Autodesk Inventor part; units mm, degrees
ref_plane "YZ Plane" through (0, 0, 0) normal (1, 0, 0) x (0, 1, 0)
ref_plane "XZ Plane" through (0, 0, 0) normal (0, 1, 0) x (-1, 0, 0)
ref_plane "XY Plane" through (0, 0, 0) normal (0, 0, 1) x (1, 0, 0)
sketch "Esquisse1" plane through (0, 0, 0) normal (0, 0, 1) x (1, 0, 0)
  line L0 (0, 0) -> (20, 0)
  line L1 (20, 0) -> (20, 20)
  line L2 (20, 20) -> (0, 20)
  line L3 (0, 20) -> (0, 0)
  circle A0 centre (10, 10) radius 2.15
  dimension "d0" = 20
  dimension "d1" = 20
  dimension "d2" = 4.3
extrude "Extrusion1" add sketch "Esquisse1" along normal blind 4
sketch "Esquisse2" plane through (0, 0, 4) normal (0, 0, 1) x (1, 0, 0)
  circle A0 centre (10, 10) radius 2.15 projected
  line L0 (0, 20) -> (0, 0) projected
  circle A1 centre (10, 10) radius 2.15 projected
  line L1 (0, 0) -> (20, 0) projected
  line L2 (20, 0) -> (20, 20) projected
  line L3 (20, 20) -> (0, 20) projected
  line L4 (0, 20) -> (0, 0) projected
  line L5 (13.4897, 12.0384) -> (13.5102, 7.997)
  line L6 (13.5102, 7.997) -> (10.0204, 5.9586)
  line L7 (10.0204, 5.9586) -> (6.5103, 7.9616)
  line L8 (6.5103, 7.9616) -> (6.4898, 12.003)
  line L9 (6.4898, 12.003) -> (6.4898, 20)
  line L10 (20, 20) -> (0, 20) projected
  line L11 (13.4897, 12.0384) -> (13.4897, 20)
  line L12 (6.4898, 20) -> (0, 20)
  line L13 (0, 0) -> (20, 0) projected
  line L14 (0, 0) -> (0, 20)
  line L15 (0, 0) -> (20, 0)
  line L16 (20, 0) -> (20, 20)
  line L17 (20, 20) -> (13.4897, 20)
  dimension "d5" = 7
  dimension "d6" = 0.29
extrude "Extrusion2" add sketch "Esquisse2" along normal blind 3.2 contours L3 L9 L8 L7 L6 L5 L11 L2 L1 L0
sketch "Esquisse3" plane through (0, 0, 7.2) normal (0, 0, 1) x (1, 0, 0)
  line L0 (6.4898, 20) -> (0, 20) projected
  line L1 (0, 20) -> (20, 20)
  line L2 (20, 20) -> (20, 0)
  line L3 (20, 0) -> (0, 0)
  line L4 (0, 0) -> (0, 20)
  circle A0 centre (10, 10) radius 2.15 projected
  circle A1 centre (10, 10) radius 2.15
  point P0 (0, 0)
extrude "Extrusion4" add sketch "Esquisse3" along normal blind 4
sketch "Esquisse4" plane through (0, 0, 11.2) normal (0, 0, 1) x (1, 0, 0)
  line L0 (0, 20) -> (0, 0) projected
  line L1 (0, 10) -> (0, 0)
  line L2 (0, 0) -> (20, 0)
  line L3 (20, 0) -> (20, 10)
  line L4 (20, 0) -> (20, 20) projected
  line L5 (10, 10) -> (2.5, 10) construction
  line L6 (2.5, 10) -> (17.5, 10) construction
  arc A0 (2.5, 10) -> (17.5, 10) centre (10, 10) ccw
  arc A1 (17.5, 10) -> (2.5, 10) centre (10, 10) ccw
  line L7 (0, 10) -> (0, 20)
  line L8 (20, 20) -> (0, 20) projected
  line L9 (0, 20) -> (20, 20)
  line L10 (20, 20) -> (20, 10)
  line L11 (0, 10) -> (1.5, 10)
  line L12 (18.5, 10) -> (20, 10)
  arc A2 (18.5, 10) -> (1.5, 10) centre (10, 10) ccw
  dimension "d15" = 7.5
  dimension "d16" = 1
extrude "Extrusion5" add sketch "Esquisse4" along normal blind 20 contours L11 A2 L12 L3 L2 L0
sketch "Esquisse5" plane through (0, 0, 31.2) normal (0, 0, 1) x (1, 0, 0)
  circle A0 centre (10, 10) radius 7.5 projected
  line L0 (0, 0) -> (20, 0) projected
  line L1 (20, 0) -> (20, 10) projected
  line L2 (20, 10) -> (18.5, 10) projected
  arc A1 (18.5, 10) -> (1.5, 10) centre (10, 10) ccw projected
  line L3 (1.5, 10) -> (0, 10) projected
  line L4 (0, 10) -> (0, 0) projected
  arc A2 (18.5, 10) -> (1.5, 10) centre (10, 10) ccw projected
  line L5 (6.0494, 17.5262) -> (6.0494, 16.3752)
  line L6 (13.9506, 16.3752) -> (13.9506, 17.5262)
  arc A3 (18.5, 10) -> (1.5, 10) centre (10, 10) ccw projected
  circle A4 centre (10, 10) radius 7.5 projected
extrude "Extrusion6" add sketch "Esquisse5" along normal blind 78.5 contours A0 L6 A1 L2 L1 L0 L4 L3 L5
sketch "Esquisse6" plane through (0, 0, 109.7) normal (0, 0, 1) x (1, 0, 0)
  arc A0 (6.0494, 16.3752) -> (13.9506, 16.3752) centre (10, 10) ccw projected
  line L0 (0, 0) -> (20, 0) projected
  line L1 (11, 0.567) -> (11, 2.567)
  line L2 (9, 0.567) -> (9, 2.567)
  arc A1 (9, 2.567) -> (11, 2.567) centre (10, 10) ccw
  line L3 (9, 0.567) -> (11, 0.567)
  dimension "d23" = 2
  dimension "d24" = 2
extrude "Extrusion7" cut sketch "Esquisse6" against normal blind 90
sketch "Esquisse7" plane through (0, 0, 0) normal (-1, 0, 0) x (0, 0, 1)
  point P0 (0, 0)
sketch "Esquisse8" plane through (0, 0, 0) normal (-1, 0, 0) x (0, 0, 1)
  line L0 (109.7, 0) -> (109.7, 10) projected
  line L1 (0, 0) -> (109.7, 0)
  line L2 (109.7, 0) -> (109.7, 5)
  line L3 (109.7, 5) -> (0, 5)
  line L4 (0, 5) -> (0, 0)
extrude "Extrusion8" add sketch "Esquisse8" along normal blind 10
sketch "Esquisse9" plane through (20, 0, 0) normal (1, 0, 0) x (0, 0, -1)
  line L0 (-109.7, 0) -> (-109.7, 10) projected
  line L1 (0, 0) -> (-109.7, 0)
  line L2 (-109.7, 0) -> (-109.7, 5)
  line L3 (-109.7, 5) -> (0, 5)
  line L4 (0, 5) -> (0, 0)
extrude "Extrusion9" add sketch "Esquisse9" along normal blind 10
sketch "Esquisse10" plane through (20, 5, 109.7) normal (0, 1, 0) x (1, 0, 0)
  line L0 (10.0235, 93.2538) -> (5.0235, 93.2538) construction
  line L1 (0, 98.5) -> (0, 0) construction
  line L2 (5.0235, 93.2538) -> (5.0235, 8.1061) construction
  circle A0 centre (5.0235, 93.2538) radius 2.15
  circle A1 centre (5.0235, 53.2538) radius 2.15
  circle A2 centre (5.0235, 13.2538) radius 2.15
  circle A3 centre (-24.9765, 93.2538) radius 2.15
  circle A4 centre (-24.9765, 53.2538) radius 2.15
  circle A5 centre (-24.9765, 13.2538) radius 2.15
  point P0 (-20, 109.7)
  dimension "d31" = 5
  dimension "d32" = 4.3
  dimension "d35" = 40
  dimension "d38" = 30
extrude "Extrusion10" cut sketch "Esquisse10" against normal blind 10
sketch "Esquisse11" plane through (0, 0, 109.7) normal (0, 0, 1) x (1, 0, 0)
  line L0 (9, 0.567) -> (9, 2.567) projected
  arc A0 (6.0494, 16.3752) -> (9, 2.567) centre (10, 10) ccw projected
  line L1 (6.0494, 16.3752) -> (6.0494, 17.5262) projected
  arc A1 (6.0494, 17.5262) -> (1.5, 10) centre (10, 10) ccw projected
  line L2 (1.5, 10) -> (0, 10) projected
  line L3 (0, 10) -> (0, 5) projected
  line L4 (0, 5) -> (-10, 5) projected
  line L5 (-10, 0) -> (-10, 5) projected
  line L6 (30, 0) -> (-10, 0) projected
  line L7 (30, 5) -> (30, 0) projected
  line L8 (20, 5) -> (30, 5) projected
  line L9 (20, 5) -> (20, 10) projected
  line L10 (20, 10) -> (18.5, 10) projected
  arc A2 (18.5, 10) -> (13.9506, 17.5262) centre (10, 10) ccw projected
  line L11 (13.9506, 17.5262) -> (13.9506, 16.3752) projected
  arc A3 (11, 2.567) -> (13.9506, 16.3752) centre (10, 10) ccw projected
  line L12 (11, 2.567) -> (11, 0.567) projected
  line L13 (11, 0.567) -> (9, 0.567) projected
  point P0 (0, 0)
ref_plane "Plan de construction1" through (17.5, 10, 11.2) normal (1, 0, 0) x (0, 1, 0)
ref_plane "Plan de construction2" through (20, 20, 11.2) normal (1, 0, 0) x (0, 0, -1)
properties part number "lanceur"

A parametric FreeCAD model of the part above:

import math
import FreeCAD as App
import Part
import Sketcher
Q = App.Units.Quantity

doc = App.newDocument("Part")
params = doc.addObject("Spreadsheet::Sheet", "Params")
for row, (alias, value) in enumerate([
    ("sketch1_diameter", "4.3 mm"),
    ("sketch1_width", "20 mm"),
    ("pad1_length", "4 mm"),
    ("sketch2_width", "20 mm"),
    ("pad2_length", "3.2 mm"),
    ("sketch3_diameter", "4.3 mm"),
    ("sketch3_width", "20 mm"),
    ("pad3_length", "4 mm"),
    ("sketch4_diameter", "15 mm"),
    ("sketch4_radius", "8.5 mm"),
    ("sketch4_width", "20 mm"),
    ("sketch4_height", "10 mm"),
    ("pad4_length", "20 mm"),
    ("sketch5_radius", "7.5 mm"),
    ("sketch5_radius2", "8.5 mm"),
    ("sketch5_width", "20 mm"),
    ("sketch5_height", "10 mm"),
    ("pad5_length", "78.5 mm"),
    ("sketch6_width", "2 mm"),
    ("sketch6_radius", "7.5 mm"),
    ("pocket1_length", "90 mm"),
    ("sketch7_width", "5 mm"),
    ("sketch7_height", "109.7 mm"),
    ("pad6_length", "10 mm"),
    ("sketch8_width", "5 mm"),
    ("sketch8_height", "109.7 mm"),
    ("pad7_length", "10 mm"),
    ("sketch9_diameter", "4.3 mm"),
    ("pocket2_length", "10 mm"),
], start=1):
    params.set(f"A{row}", alias)
    params.set(f"B{row}", "=" + value)
    params.setAlias(f"B{row}", alias)

body = doc.addObject("PartDesign::Body", "Body")

sketch1 = doc.addObject("Sketcher::SketchObject", "Sketch")
body.addObject(sketch1)
sketch1.AttachmentSupport = (doc.XY_Plane, [""])
sketch1.MapMode = "FlatFace"
sketch1.addGeometry(Part.LineSegment(App.Vector(0, 20, 0), App.Vector(0, 0, 0)), False)
sketch1.addGeometry(Part.LineSegment(App.Vector(0, 0, 0), App.Vector(20, 0, 0)), False)
sketch1.addGeometry(Part.LineSegment(App.Vector(20, 0, 0), App.Vector(20, 20, 0)), False)
sketch1.addGeometry(Part.LineSegment(App.Vector(20, 20, 0), App.Vector(0, 20, 0)), False)
sketch1.addGeometry(Part.Circle(App.Vector(10, 10, 0), App.Vector(0, 0, 1), 2.1), False)
sketch1.addConstraint(Sketcher.Constraint("Coincident", 0, 2, 1, 1))
sketch1.addConstraint(Sketcher.Constraint("Coincident", 1, 2, 2, 1))
sketch1.addConstraint(Sketcher.Constraint("Coincident", 2, 2, 3, 1))
sketch1.addConstraint(Sketcher.Constraint("Coincident", 3, 2, 0, 1))
sketch1.addConstraint(Sketcher.Constraint("Vertical", 0))
sketch1.addConstraint(Sketcher.Constraint("Horizontal", 1))
sketch1.addConstraint(Sketcher.Constraint("Vertical", 2))
sketch1.addConstraint(Sketcher.Constraint("Horizontal", 3))
sketch1.addConstraint(Sketcher.Constraint("Coincident", 0, 2, -1, 1))
sketch1.addConstraint(Sketcher.Constraint("Equal", 3, 0))
sketch1.addConstraint(Sketcher.Constraint("Diameter", 4, 4.3))
sketch1.addConstraint(Sketcher.Constraint("DistanceX", 1, 1, 1, 2, 20.0))
sketch1.addConstraint(Sketcher.Constraint("DistanceX", -1, 1, 4, 3, 10.0))
sketch1.addConstraint(Sketcher.Constraint("DistanceY", -1, 1, 4, 3, 10.0))
sketch1.setExpression("Constraints[10]", "Params.sketch1_diameter")
sketch1.setExpression("Constraints[11]", "Params.sketch1_width")
pad1 = doc.addObject("PartDesign::Pad", "Pad")
body.addObject(pad1)
pad1.Profile = sketch1
pad1.setExpression("Length", "Params.pad1_length")

sketch2 = doc.addObject("Sketcher::SketchObject", "Sketch001")
body.addObject(sketch2)
sketch2.AttachmentSupport = (doc.XY_Plane, [""])
sketch2.MapMode = "FlatFace"
sketch2.AttachmentOffset = App.Placement(App.Vector(0, 0, 4), App.Rotation())
sketch2.addGeometry(Part.LineSegment(App.Vector(6.5, 20, 0), App.Vector(0, 20, 0)), False)
sketch2.addGeometry(Part.LineSegment(App.Vector(0, 20, 0), App.Vector(0, 0, 0)), False)
sketch2.addGeometry(Part.LineSegment(App.Vector(0, 0, 0), App.Vector(20, 0, 0)), False)
sketch2.addGeometry(Part.LineSegment(App.Vector(20, 0, 0), App.Vector(20, 20, 0)), False)
sketch2.addGeometry(Part.LineSegment(App.Vector(20, 20, 0), App.Vector(13.5, 20, 0)), False)
sketch2.addGeometry(Part.LineSegment(App.Vector(13.5, 20, 0), App.Vector(13.5, 12, 0)), False)
sketch2.addGeometry(Part.LineSegment(App.Vector(13.5, 12, 0), App.Vector(13.5, 8, 0)), False)
sketch2.addGeometry(Part.LineSegment(App.Vector(13.5, 8, 0), App.Vector(10, 6, 0)), False)
sketch2.addGeometry(Part.LineSegment(App.Vector(10, 6, 0), App.Vector(6.5, 8, 0)), False)
sketch2.addGeometry(Part.LineSegment(App.Vector(6.5, 8, 0), App.Vector(6.5, 12, 0)), False)
sketch2.addGeometry(Part.LineSegment(App.Vector(6.5, 12, 0), App.Vector(6.5, 20, 0)), False)
sketch2.addConstraint(Sketcher.Constraint("Coincident", 0, 2, 1, 1))
sketch2.addConstraint(Sketcher.Constraint("Coincident", 1, 2, 2, 1))
sketch2.addConstraint(Sketcher.Constraint("Coincident", 2, 2, 3, 1))
sketch2.addConstraint(Sketcher.Constraint("Coincident", 3, 2, 4, 1))
sketch2.addConstraint(Sketcher.Constraint("Coincident", 4, 2, 5, 1))
sketch2.addConstraint(Sketcher.Constraint("Coincident", 5, 2, 6, 1))
sketch2.addConstraint(Sketcher.Constraint("Coincident", 6, 2, 7, 1))
sketch2.addConstraint(Sketcher.Constraint("Coincident", 7, 2, 8, 1))
sketch2.addConstraint(Sketcher.Constraint("Coincident", 8, 2, 9, 1))
sketch2.addConstraint(Sketcher.Constraint("Coincident", 9, 2, 10, 1))
sketch2.addConstraint(Sketcher.Constraint("Coincident", 10, 2, 0, 1))
sketch2.addConstraint(Sketcher.Constraint("Horizontal", 0))
sketch2.addConstraint(Sketcher.Constraint("Vertical", 1))
sketch2.addConstraint(Sketcher.Constraint("Horizontal", 2))
sketch2.addConstraint(Sketcher.Constraint("Vertical", 3))
sketch2.addConstraint(Sketcher.Constraint("Horizontal", 4))
sketch2.addConstraint(Sketcher.Constraint("Vertical", 5))
sketch2.addConstraint(Sketcher.Constraint("Vertical", 10))
sketch2.addConstraint(Sketcher.Constraint("Coincident", 1, 2, -1, 1))
sketch2.addConstraint(Sketcher.Constraint("Parallel", 6, 9))
sketch2.addConstraint(Sketcher.Constraint("Horizontal", 0, 2, 3, 2))
sketch2.addConstraint(Sketcher.Constraint("Equal", 2, 1))
sketch2.addConstraint(Sketcher.Constraint("Equal", 6, 7))
sketch2.addConstraint(Sketcher.Constraint("Equal", 7, 8))
sketch2.addConstraint(Sketcher.Constraint("Equal", 8, 9))
sketch2.addConstraint(Sketcher.Constraint("DistanceX", 8, 2, 6, 2, 7.0))
sketch2.addConstraint(Sketcher.Constraint("DistanceX", 2, 1, 2, 2, 20.0))
sketch2.addConstraint(Sketcher.Constraint("Angle", 6, Q("-89.7094 deg")))
sketch2.addConstraint(Sketcher.Constraint("Angle", 7, Q("-149.7107 deg")))
sketch2.addConstraint(Sketcher.Constraint("Angle", 8, Q("150.2892 deg")))
sketch2.addConstraint(Sketcher.Constraint("DistanceY", 10, 1, 10, 2, 7.997))
sketch2.addConstraint(Sketcher.Constraint("DistanceX", 0, 2, 0, 1, 6.4898))
sketch2.setExpression("Constraints[26]", "Params.sketch2_width")
pad2 = doc.addObject("PartDesign::Pad", "Pad001")
body.addObject(pad2)
pad2.Profile = sketch2
pad2.setExpression("Length", "Params.pad2_length")

sketch3 = doc.addObject("Sketcher::SketchObject", "Sketch002")
body.addObject(sketch3)
sketch3.AttachmentSupport = (doc.XY_Plane, [""])
sketch3.MapMode = "FlatFace"
sketch3.AttachmentOffset = App.Placement(App.Vector(0, 0, 7.2), App.Rotation())
sketch3.addGeometry(Part.LineSegment(App.Vector(20, 20, 0), App.Vector(0, 20, 0)), False)
sketch3.addGeometry(Part.LineSegment(App.Vector(0, 20, 0), App.Vector(0, 0, 0)), False)
sketch3.addGeometry(Part.LineSegment(App.Vector(0, 0, 0), App.Vector(20, 0, 0)), False)
sketch3.addGeometry(Part.LineSegment(App.Vector(20, 0, 0), App.Vector(20, 20, 0)), False)
sketch3.addGeometry(Part.Circle(App.Vector(10, 10, 0), App.Vector(0, 0, 1), 2.1), False)
sketch3.addConstraint(Sketcher.Constraint("Coincident", 0, 2, 1, 1))
sketch3.addConstraint(Sketcher.Constraint("Coincident", 1, 2, 2, 1))
sketch3.addConstraint(Sketcher.Constraint("Coincident", 2, 2, 3, 1))
sketch3.addConstraint(Sketcher.Constraint("Coincident", 3, 2, 0, 1))
sketch3.addConstraint(Sketcher.Constraint("Horizontal", 0))
sketch3.addConstraint(Sketcher.Constraint("Vertical", 1))
sketch3.addConstraint(Sketcher.Constraint("Horizontal", 2))
sketch3.addConstraint(Sketcher.Constraint("Vertical", 3))
sketch3.addConstraint(Sketcher.Constraint("Coincident", 1, 2, -1, 1))
sketch3.addConstraint(Sketcher.Constraint("Equal", 2, 1))
sketch3.addConstraint(Sketcher.Constraint("Diameter", 4, 4.3))
sketch3.addConstraint(Sketcher.Constraint("DistanceX", 0, 2, 0, 1, 20.0))
sketch3.addConstraint(Sketcher.Constraint("DistanceX", -1, 1, 4, 3, 10.0))
sketch3.addConstraint(Sketcher.Constraint("DistanceY", -1, 1, 4, 3, 10.0))
sketch3.setExpression("Constraints[10]", "Params.sketch3_diameter")
sketch3.setExpression("Constraints[11]", "Params.sketch3_width")
pad3 = doc.addObject("PartDesign::Pad", "Pad002")
body.addObject(pad3)
pad3.Profile = sketch3
pad3.setExpression("Length", "Params.pad3_length")

sketch4 = doc.addObject("Sketcher::SketchObject", "Sketch003")
body.addObject(sketch4)
sketch4.AttachmentSupport = (doc.XY_Plane, [""])
sketch4.MapMode = "FlatFace"
sketch4.AttachmentOffset = App.Placement(App.Vector(0, 0, 11.2), App.Rotation())
sketch4.addGeometry(Part.LineSegment(App.Vector(1.5, 10, 0), App.Vector(0, 10, 0)), False)
sketch4.addGeometry(Part.LineSegment(App.Vector(0, 10, 0), App.Vector(0, 0, 0)), False)
sketch4.addGeometry(Part.LineSegment(App.Vector(0, 0, 0), App.Vector(20, 0, 0)), False)
sketch4.addGeometry(Part.LineSegment(App.Vector(20, 0, 0), App.Vector(20, 10, 0)), False)
sketch4.addGeometry(Part.LineSegment(App.Vector(20, 10, 0), App.Vector(18.5, 10, 0)), False)
sketch4.addGeometry(Part.ArcOfCircle(Part.Circle(App.Vector(10, 10, 0), App.Vector(0, 0, 1), 8.5), math.radians(0), math.radians(180)), False)
sketch4.addGeometry(Part.Circle(App.Vector(10, 10, 0), App.Vector(0, 0, 1), 7.5), False)
sketch4.addConstraint(Sketcher.Constraint("Coincident", 0, 2, 1, 1))
sketch4.addConstraint(Sketcher.Constraint("Coincident", 1, 2, 2, 1))
sketch4.addConstraint(Sketcher.Constraint("Coincident", 2, 2, 3, 1))
sketch4.addConstraint(Sketcher.Constraint("Coincident", 3, 2, 4, 1))
sketch4.addConstraint(Sketcher.Constraint("Coincident", 4, 2, 5, 1))
sketch4.addConstraint(Sketcher.Constraint("Coincident", 5, 2, 0, 1))
sketch4.addConstraint(Sketcher.Constraint("Horizontal", 0))
sketch4.addConstraint(Sketcher.Constraint("Vertical", 1))
sketch4.addConstraint(Sketcher.Constraint("Horizontal", 2))
sketch4.addConstraint(Sketcher.Constraint("Vertical", 3))
sketch4.addConstraint(Sketcher.Constraint("Horizontal", 4))
sketch4.addConstraint(Sketcher.Constraint("Coincident", 1, 2, -1, 1))
sketch4.addConstraint(Sketcher.Constraint("Coincident", 6, 3, 5, 3))
sketch4.addConstraint(Sketcher.Constraint("Horizontal", 6, 3, 0, 2))
sketch4.addConstraint(Sketcher.Constraint("Horizontal", 0, 2, 3, 2))
sketch4.addConstraint(Sketcher.Constraint("Equal", 0, 4))
sketch4.addConstraint(Sketcher.Constraint("Diameter", 6, 15.0))
sketch4.addConstraint(Sketcher.Constraint("Radius", 5, 8.5))
sketch4.addConstraint(Sketcher.Constraint("DistanceX", 2, 1, 2, 2, 20.0))
sketch4.addConstraint(Sketcher.Constraint("DistanceY", 1, 2, 1, 1, 10.0))
sketch4.setExpression("Constraints[16]", "Params.sketch4_diameter")
sketch4.setExpression("Constraints[17]", "Params.sketch4_radius")
sketch4.setExpression("Constraints[18]", "Params.sketch4_width")
sketch4.setExpression("Constraints[19]", "Params.sketch4_height")
pad4 = doc.addObject("PartDesign::Pad", "Pad003")
body.addObject(pad4)
pad4.Profile = sketch4
pad4.setExpression("Length", "Params.pad4_length")

sketch5 = doc.addObject("Sketcher::SketchObject", "Sketch004")
body.addObject(sketch5)
sketch5.AttachmentSupport = (doc.XY_Plane, [""])
sketch5.MapMode = "FlatFace"
sketch5.AttachmentOffset = App.Placement(App.Vector(0, 0, 31.2), App.Rotation())
sketch5.addGeometry(Part.ArcOfCircle(Part.Circle(App.Vector(10, 10, 0), App.Vector(0, 0, 1), 7.5), math.radians(122), math.radians(418)), False)
sketch5.addGeometry(Part.LineSegment(App.Vector(6, 16.4, 0), App.Vector(6, 17.5, 0)), False)
sketch5.addGeometry(Part.ArcOfCircle(Part.Circle(App.Vector(10, 10, 0), App.Vector(0, 0, 1), 8.5), math.radians(118), math.radians(180)), False)
sketch5.addGeometry(Part.LineSegment(App.Vector(1.5, 10, 0), App.Vector(0, 10, 0)), False)
sketch5.addGeometry(Part.LineSegment(App.Vector(0, 10, 0), App.Vector(0, 0, 0)), False)
sketch5.addGeometry(Part.LineSegment(App.Vector(0, 0, 0), App.Vector(20, 0, 0)), False)
sketch5.addGeometry(Part.LineSegment(App.Vector(20, 0, 0), App.Vector(20, 10, 0)), False)
sketch5.addGeometry(Part.LineSegment(App.Vector(20, 10, 0), App.Vector(18.5, 10, 0)), False)
sketch5.addGeometry(Part.ArcOfCircle(Part.Circle(App.Vector(10, 10, 0), App.Vector(0, 0, 1), 8.5), math.radians(0), math.radians(62)), False)
sketch5.addGeometry(Part.LineSegment(App.Vector(14, 17.5, 0), App.Vector(14, 16.4, 0)), False)
sketch5.addConstraint(Sketcher.Constraint("Coincident", 0, 1, 1, 1))
sketch5.addConstraint(Sketcher.Constraint("Coincident", 1, 2, 2, 1))
sketch5.addConstraint(Sketcher.Constraint("Coincident", 2, 2, 3, 1))
sketch5.addConstraint(Sketcher.Constraint("Coincident", 3, 2, 4, 1))
sketch5.addConstraint(Sketcher.Constraint("Coincident", 4, 2, 5, 1))
sketch5.addConstraint(Sketcher.Constraint("Coincident", 5, 2, 6, 1))
sketch5.addConstraint(Sketcher.Constraint("Coincident", 6, 2, 7, 1))
sketch5.addConstraint(Sketcher.Constraint("Coincident", 7, 2, 8, 1))
sketch5.addConstraint(Sketcher.Constraint("Coincident", 8, 2, 9, 1))
sketch5.addConstraint(Sketcher.Constraint("Coincident", 9, 2, 0, 2))
sketch5.addConstraint(Sketcher.Constraint("Vertical", 1))
sketch5.addConstraint(Sketcher.Constraint("Horizontal", 3))
sketch5.addConstraint(Sketcher.Constraint("Vertical", 4))
sketch5.addConstraint(Sketcher.Constraint("Horizontal", 5))
sketch5.addConstraint(Sketcher.Constraint("Vertical", 6))
sketch5.addConstraint(Sketcher.Constraint("Horizontal", 7))
sketch5.addConstraint(Sketcher.Constraint("Vertical", 9))
sketch5.addConstraint(Sketcher.Constraint("Coincident", 4, 2, -1, 1))
sketch5.addConstraint(Sketcher.Constraint("Coincident", 2, 3, 0, 3))
sketch5.addConstraint(Sketcher.Constraint("Coincident", 8, 3, 0, 3))
sketch5.addConstraint(Sketcher.Constraint("Equal", 2, 8))
sketch5.addConstraint(Sketcher.Constraint("Horizontal", 8, 3, 2, 2))
sketch5.addConstraint(Sketcher.Constraint("Horizontal", 3, 2, 6, 2))
sketch5.addConstraint(Sketcher.Constraint("Horizontal", 1, 2, 8, 2))
sketch5.addConstraint(Sketcher.Constraint("Equal", 3, 7))
sketch5.addConstraint(Sketcher.Constraint("Radius", 0, 7.5))
sketch5.addConstraint(Sketcher.Constraint("Radius", 2, 8.5))
sketch5.addConstraint(Sketcher.Constraint("DistanceX", 5, 1, 5, 2, 20.0))
sketch5.addConstraint(Sketcher.Constraint("DistanceY", 4, 2, 4, 1, 10.0))
sketch5.addConstraint(Sketcher.Constraint("DistanceY", 1, 1, 1, 2, 1.151))
sketch5.setExpression("Constraints[25]", "Params.sketch5_radius")
sketch5.setExpression("Constraints[26]", "Params.sketch5_radius2")
sketch5.setExpression("Constraints[27]", "Params.sketch5_width")
sketch5.setExpression("Constraints[28]", "Params.sketch5_height")
pad5 = doc.addObject("PartDesign::Pad", "Pad004")
body.addObject(pad5)
pad5.Profile = sketch5
pad5.setExpression("Length", "Params.pad5_length")

sketch6 = doc.addObject("Sketcher::SketchObject", "Sketch005")
body.addObject(sketch6)
sketch6.AttachmentSupport = (doc.XY_Plane, [""])
sketch6.MapMode = "FlatFace"
sketch6.AttachmentOffset = App.Placement(App.Vector(0, 0, 109.7), App.Rotation())
sketch6.addGeometry(Part.ArcOfCircle(Part.Circle(App.Vector(10, 10, 0), App.Vector(0, 0, 1), 7.5), math.radians(-97.66), math.radians(-82.34)), False)
sketch6.addGeometry(Part.LineSegment(App.Vector(9, 2.6, 0), App.Vector(9, 0.6, 0)), False)
sketch6.addGeometry(Part.LineSegment(App.Vector(9, 0.6, 0), App.Vector(11, 0.6, 0)), False)
sketch6.addGeometry(Part.LineSegment(App.Vector(11, 0.6, 0), App.Vector(11, 2.6, 0)), False)
sketch6.addConstraint(Sketcher.Constraint("Coincident", 0, 1, 1, 1))
sketch6.addConstraint(Sketcher.Constraint("Coincident", 1, 2, 2, 1))
sketch6.addConstraint(Sketcher.Constraint("Coincident", 2, 2, 3, 1))
sketch6.addConstraint(Sketcher.Constraint("Coincident", 3, 2, 0, 2))
sketch6.addConstraint(Sketcher.Constraint("Vertical", 1))
sketch6.addConstraint(Sketcher.Constraint("Horizontal", 2))
sketch6.addConstraint(Sketcher.Constraint("Vertical", 3))
sketch6.addConstraint(Sketcher.Constraint("Horizontal", 0, 1, 3, 2))
sketch6.addConstraint(Sketcher.Constraint("Equal", 2, 1))
sketch6.addConstraint(Sketcher.Constraint("DistanceX", 2, 1, 2, 2, 2.0))
sketch6.addConstraint(Sketcher.Constraint("Radius", 0, 7.5))
sketch6.addConstraint(Sketcher.Constraint("DistanceX", -1, 1, 0, 3, 10.0))
sketch6.addConstraint(Sketcher.Constraint("DistanceY", -1, 1, 0, 3, 10.0))
sketch6.setExpression("Constraints[9]", "Params.sketch6_width")
sketch6.setExpression("Constraints[10]", "Params.sketch6_radius")
pocket1 = doc.addObject("PartDesign::Pocket", "Pocket")
body.addObject(pocket1)
pocket1.Profile = sketch6
pocket1.setExpression("Length", "Params.pocket1_length")

sketch7 = doc.addObject("Sketcher::SketchObject", "Sketch006")
body.addObject(sketch7)
sketch7.AttachmentSupport = (doc.YZ_Plane, [""])
sketch7.MapMode = "FlatFace"
sketch7.addGeometry(Part.LineSegment(App.Vector(0, 0, 0), App.Vector(0, 110, 0)), False)
sketch7.addGeometry(Part.LineSegment(App.Vector(0, 110, 0), App.Vector(5, 110, 0)), False)
sketch7.addGeometry(Part.LineSegment(App.Vector(5, 110, 0), App.Vector(5, 0, 0)), False)
sketch7.addGeometry(Part.LineSegment(App.Vector(5, 0, 0), App.Vector(0, 0, 0)), False)
sketch7.addConstraint(Sketcher.Constraint("Coincident", 0, 2, 1, 1))
sketch7.addConstraint(Sketcher.Constraint("Coincident", 1, 2, 2, 1))
sketch7.addConstraint(Sketcher.Constraint("Coincident", 2, 2, 3, 1))
sketch7.addConstraint(Sketcher.Constraint("Coincident", 3, 2, 0, 1))
sketch7.addConstraint(Sketcher.Constraint("Vertical", 0))
sketch7.addConstraint(Sketcher.Constraint("Horizontal", 1))
sketch7.addConstraint(Sketcher.Constraint("Vertical", 2))
sketch7.addConstraint(Sketcher.Constraint("Horizontal", 3))
sketch7.addConstraint(Sketcher.Constraint("Coincident", 3, 2, -1, 1))
sketch7.addConstraint(Sketcher.Constraint("DistanceX", 1, 1, 1, 2, 5.0))
sketch7.addConstraint(Sketcher.Constraint("DistanceY", 0, 1, 0, 2, 109.7))
sketch7.setExpression("Constraints[9]", "Params.sketch7_width")
sketch7.setExpression("Constraints[10]", "Params.sketch7_height")
pad6 = doc.addObject("PartDesign::Pad", "Pad005")
body.addObject(pad6)
pad6.Profile = sketch7
pad6.setExpression("Length", "Params.pad6_length")
pad6.Reversed = True

sketch8 = doc.addObject("Sketcher::SketchObject", "Sketch007")
body.addObject(sketch8)
sketch8.AttachmentSupport = (doc.YZ_Plane, [""])
sketch8.MapMode = "FlatFace"
sketch8.AttachmentOffset = App.Placement(App.Vector(0, 0, 20), App.Rotation())
sketch8.addGeometry(Part.LineSegment(App.Vector(5, 110, 0), App.Vector(0, 110, 0)), False)
sketch8.addGeometry(Part.LineSegment(App.Vector(0, 110, 0), App.Vector(0, 0, 0)), False)
sketch8.addGeometry(Part.LineSegment(App.Vector(0, 0, 0), App.Vector(5, 0, 0)), False)
sketch8.addGeometry(Part.LineSegment(App.Vector(5, 0, 0), App.Vector(5, 110, 0)), False)
sketch8.addConstraint(Sketcher.Constraint("Coincident", 0, 2, 1, 1))
sketch8.addConstraint(Sketcher.Constraint("Coincident", 1, 2, 2, 1))
sketch8.addConstraint(Sketcher.Constraint("Coincident", 2, 2, 3, 1))
sketch8.addConstraint(Sketcher.Constraint("Coincident", 3, 2, 0, 1))
sketch8.addConstraint(Sketcher.Constraint("Horizontal", 0))
sketch8.addConstraint(Sketcher.Constraint("Vertical", 1))
sketch8.addConstraint(Sketcher.Constraint("Horizontal", 2))
sketch8.addConstraint(Sketcher.Constraint("Vertical", 3))
sketch8.addConstraint(Sketcher.Constraint("Coincident", 1, 2, -1, 1))
sketch8.addConstraint(Sketcher.Constraint("DistanceX", 0, 2, 0, 1, 5.0))
sketch8.addConstraint(Sketcher.Constraint("DistanceY", 1, 2, 1, 1, 109.7))
sketch8.setExpression("Constraints[9]", "Params.sketch8_width")
sketch8.setExpression("Constraints[10]", "Params.sketch8_height")
pad7 = doc.addObject("PartDesign::Pad", "Pad006")
body.addObject(pad7)
pad7.Profile = sketch8
pad7.setExpression("Length", "Params.pad7_length")

sketch9 = doc.addObject("Sketcher::SketchObject", "Sketch008")
body.addObject(sketch9)
sketch9.AttachmentSupport = (doc.XZ_Plane, [""])
sketch9.MapMode = "FlatFace"
sketch9.AttachmentOffset = App.Placement(App.Vector(0, 0, -5), App.Rotation())
sketch9.addGeometry(Part.Circle(App.Vector(25, 16.4, 0), App.Vector(0, 0, 1), 2.1), False)
sketch9.addGeometry(Part.Circle(App.Vector(25, 56.4, 0), App.Vector(0, 0, 1), 2.1), False)
sketch9.addGeometry(Part.Circle(App.Vector(25, 96.4, 0), App.Vector(0, 0, 1), 2.1), False)
sketch9.addGeometry(Part.Circle(App.Vector(-5, 16.4, 0), App.Vector(0, 0, 1), 2.1), False)
sketch9.addGeometry(Part.Circle(App.Vector(-5, 56.4, 0), App.Vector(0, 0, 1), 2.1), False)
sketch9.addGeometry(Part.Circle(App.Vector(-5, 96.4, 0), App.Vector(0, 0, 1), 2.1), False)
sketch9.addConstraint(Sketcher.Constraint("Equal", 0, 1))
sketch9.addConstraint(Sketcher.Constraint("Equal", 1, 2))
sketch9.addConstraint(Sketcher.Constraint("Equal", 2, 3))
sketch9.addConstraint(Sketcher.Constraint("Equal", 3, 4))
sketch9.addConstraint(Sketcher.Constraint("Equal", 4, 5))
sketch9.addConstraint(Sketcher.Constraint("Horizontal", 0, 3, 3, 3))
sketch9.addConstraint(Sketcher.Constraint("Horizontal", 1, 3, 4, 3))
sketch9.addConstraint(Sketcher.Constraint("Horizontal", 2, 3, 5, 3))
sketch9.addConstraint(Sketcher.Constraint("Vertical", 0, 3, 1, 3))
sketch9.addConstraint(Sketcher.Constraint("Vertical", 1, 3, 2, 3))
sketch9.addConstraint(Sketcher.Constraint("Vertical", 3, 3, 4, 3))
sketch9.addConstraint(Sketcher.Constraint("Vertical", 4, 3, 5, 3))
sketch9.addConstraint(Sketcher.Constraint("Diameter", 0, 4.3))
sketch9.addConstraint(Sketcher.Constraint("DistanceY", 0, 3, 1, 3, 40.0))
sketch9.addConstraint(Sketcher.Constraint("DistanceY", 1, 3, 2, 3, 40.0))
sketch9.addConstraint(Sketcher.Constraint("DistanceX", 3, 3, 0, 3, 30.0))
sketch9.addConstraint(Sketcher.Constraint("DistanceX", -1, 1, 0, 3, 25.0235))
sketch9.addConstraint(Sketcher.Constraint("DistanceY", -1, 1, 0, 3, 16.4462))
sketch9.setExpression("Constraints[12]", "Params.sketch9_diameter")
pocket2 = doc.addObject("PartDesign::Pocket", "Pocket001")
body.addObject(pocket2)
pocket2.Profile = sketch9
pocket2.setExpression("Length", "Params.pocket2_length")
pocket2.Reversed = True

doc.recompute()
